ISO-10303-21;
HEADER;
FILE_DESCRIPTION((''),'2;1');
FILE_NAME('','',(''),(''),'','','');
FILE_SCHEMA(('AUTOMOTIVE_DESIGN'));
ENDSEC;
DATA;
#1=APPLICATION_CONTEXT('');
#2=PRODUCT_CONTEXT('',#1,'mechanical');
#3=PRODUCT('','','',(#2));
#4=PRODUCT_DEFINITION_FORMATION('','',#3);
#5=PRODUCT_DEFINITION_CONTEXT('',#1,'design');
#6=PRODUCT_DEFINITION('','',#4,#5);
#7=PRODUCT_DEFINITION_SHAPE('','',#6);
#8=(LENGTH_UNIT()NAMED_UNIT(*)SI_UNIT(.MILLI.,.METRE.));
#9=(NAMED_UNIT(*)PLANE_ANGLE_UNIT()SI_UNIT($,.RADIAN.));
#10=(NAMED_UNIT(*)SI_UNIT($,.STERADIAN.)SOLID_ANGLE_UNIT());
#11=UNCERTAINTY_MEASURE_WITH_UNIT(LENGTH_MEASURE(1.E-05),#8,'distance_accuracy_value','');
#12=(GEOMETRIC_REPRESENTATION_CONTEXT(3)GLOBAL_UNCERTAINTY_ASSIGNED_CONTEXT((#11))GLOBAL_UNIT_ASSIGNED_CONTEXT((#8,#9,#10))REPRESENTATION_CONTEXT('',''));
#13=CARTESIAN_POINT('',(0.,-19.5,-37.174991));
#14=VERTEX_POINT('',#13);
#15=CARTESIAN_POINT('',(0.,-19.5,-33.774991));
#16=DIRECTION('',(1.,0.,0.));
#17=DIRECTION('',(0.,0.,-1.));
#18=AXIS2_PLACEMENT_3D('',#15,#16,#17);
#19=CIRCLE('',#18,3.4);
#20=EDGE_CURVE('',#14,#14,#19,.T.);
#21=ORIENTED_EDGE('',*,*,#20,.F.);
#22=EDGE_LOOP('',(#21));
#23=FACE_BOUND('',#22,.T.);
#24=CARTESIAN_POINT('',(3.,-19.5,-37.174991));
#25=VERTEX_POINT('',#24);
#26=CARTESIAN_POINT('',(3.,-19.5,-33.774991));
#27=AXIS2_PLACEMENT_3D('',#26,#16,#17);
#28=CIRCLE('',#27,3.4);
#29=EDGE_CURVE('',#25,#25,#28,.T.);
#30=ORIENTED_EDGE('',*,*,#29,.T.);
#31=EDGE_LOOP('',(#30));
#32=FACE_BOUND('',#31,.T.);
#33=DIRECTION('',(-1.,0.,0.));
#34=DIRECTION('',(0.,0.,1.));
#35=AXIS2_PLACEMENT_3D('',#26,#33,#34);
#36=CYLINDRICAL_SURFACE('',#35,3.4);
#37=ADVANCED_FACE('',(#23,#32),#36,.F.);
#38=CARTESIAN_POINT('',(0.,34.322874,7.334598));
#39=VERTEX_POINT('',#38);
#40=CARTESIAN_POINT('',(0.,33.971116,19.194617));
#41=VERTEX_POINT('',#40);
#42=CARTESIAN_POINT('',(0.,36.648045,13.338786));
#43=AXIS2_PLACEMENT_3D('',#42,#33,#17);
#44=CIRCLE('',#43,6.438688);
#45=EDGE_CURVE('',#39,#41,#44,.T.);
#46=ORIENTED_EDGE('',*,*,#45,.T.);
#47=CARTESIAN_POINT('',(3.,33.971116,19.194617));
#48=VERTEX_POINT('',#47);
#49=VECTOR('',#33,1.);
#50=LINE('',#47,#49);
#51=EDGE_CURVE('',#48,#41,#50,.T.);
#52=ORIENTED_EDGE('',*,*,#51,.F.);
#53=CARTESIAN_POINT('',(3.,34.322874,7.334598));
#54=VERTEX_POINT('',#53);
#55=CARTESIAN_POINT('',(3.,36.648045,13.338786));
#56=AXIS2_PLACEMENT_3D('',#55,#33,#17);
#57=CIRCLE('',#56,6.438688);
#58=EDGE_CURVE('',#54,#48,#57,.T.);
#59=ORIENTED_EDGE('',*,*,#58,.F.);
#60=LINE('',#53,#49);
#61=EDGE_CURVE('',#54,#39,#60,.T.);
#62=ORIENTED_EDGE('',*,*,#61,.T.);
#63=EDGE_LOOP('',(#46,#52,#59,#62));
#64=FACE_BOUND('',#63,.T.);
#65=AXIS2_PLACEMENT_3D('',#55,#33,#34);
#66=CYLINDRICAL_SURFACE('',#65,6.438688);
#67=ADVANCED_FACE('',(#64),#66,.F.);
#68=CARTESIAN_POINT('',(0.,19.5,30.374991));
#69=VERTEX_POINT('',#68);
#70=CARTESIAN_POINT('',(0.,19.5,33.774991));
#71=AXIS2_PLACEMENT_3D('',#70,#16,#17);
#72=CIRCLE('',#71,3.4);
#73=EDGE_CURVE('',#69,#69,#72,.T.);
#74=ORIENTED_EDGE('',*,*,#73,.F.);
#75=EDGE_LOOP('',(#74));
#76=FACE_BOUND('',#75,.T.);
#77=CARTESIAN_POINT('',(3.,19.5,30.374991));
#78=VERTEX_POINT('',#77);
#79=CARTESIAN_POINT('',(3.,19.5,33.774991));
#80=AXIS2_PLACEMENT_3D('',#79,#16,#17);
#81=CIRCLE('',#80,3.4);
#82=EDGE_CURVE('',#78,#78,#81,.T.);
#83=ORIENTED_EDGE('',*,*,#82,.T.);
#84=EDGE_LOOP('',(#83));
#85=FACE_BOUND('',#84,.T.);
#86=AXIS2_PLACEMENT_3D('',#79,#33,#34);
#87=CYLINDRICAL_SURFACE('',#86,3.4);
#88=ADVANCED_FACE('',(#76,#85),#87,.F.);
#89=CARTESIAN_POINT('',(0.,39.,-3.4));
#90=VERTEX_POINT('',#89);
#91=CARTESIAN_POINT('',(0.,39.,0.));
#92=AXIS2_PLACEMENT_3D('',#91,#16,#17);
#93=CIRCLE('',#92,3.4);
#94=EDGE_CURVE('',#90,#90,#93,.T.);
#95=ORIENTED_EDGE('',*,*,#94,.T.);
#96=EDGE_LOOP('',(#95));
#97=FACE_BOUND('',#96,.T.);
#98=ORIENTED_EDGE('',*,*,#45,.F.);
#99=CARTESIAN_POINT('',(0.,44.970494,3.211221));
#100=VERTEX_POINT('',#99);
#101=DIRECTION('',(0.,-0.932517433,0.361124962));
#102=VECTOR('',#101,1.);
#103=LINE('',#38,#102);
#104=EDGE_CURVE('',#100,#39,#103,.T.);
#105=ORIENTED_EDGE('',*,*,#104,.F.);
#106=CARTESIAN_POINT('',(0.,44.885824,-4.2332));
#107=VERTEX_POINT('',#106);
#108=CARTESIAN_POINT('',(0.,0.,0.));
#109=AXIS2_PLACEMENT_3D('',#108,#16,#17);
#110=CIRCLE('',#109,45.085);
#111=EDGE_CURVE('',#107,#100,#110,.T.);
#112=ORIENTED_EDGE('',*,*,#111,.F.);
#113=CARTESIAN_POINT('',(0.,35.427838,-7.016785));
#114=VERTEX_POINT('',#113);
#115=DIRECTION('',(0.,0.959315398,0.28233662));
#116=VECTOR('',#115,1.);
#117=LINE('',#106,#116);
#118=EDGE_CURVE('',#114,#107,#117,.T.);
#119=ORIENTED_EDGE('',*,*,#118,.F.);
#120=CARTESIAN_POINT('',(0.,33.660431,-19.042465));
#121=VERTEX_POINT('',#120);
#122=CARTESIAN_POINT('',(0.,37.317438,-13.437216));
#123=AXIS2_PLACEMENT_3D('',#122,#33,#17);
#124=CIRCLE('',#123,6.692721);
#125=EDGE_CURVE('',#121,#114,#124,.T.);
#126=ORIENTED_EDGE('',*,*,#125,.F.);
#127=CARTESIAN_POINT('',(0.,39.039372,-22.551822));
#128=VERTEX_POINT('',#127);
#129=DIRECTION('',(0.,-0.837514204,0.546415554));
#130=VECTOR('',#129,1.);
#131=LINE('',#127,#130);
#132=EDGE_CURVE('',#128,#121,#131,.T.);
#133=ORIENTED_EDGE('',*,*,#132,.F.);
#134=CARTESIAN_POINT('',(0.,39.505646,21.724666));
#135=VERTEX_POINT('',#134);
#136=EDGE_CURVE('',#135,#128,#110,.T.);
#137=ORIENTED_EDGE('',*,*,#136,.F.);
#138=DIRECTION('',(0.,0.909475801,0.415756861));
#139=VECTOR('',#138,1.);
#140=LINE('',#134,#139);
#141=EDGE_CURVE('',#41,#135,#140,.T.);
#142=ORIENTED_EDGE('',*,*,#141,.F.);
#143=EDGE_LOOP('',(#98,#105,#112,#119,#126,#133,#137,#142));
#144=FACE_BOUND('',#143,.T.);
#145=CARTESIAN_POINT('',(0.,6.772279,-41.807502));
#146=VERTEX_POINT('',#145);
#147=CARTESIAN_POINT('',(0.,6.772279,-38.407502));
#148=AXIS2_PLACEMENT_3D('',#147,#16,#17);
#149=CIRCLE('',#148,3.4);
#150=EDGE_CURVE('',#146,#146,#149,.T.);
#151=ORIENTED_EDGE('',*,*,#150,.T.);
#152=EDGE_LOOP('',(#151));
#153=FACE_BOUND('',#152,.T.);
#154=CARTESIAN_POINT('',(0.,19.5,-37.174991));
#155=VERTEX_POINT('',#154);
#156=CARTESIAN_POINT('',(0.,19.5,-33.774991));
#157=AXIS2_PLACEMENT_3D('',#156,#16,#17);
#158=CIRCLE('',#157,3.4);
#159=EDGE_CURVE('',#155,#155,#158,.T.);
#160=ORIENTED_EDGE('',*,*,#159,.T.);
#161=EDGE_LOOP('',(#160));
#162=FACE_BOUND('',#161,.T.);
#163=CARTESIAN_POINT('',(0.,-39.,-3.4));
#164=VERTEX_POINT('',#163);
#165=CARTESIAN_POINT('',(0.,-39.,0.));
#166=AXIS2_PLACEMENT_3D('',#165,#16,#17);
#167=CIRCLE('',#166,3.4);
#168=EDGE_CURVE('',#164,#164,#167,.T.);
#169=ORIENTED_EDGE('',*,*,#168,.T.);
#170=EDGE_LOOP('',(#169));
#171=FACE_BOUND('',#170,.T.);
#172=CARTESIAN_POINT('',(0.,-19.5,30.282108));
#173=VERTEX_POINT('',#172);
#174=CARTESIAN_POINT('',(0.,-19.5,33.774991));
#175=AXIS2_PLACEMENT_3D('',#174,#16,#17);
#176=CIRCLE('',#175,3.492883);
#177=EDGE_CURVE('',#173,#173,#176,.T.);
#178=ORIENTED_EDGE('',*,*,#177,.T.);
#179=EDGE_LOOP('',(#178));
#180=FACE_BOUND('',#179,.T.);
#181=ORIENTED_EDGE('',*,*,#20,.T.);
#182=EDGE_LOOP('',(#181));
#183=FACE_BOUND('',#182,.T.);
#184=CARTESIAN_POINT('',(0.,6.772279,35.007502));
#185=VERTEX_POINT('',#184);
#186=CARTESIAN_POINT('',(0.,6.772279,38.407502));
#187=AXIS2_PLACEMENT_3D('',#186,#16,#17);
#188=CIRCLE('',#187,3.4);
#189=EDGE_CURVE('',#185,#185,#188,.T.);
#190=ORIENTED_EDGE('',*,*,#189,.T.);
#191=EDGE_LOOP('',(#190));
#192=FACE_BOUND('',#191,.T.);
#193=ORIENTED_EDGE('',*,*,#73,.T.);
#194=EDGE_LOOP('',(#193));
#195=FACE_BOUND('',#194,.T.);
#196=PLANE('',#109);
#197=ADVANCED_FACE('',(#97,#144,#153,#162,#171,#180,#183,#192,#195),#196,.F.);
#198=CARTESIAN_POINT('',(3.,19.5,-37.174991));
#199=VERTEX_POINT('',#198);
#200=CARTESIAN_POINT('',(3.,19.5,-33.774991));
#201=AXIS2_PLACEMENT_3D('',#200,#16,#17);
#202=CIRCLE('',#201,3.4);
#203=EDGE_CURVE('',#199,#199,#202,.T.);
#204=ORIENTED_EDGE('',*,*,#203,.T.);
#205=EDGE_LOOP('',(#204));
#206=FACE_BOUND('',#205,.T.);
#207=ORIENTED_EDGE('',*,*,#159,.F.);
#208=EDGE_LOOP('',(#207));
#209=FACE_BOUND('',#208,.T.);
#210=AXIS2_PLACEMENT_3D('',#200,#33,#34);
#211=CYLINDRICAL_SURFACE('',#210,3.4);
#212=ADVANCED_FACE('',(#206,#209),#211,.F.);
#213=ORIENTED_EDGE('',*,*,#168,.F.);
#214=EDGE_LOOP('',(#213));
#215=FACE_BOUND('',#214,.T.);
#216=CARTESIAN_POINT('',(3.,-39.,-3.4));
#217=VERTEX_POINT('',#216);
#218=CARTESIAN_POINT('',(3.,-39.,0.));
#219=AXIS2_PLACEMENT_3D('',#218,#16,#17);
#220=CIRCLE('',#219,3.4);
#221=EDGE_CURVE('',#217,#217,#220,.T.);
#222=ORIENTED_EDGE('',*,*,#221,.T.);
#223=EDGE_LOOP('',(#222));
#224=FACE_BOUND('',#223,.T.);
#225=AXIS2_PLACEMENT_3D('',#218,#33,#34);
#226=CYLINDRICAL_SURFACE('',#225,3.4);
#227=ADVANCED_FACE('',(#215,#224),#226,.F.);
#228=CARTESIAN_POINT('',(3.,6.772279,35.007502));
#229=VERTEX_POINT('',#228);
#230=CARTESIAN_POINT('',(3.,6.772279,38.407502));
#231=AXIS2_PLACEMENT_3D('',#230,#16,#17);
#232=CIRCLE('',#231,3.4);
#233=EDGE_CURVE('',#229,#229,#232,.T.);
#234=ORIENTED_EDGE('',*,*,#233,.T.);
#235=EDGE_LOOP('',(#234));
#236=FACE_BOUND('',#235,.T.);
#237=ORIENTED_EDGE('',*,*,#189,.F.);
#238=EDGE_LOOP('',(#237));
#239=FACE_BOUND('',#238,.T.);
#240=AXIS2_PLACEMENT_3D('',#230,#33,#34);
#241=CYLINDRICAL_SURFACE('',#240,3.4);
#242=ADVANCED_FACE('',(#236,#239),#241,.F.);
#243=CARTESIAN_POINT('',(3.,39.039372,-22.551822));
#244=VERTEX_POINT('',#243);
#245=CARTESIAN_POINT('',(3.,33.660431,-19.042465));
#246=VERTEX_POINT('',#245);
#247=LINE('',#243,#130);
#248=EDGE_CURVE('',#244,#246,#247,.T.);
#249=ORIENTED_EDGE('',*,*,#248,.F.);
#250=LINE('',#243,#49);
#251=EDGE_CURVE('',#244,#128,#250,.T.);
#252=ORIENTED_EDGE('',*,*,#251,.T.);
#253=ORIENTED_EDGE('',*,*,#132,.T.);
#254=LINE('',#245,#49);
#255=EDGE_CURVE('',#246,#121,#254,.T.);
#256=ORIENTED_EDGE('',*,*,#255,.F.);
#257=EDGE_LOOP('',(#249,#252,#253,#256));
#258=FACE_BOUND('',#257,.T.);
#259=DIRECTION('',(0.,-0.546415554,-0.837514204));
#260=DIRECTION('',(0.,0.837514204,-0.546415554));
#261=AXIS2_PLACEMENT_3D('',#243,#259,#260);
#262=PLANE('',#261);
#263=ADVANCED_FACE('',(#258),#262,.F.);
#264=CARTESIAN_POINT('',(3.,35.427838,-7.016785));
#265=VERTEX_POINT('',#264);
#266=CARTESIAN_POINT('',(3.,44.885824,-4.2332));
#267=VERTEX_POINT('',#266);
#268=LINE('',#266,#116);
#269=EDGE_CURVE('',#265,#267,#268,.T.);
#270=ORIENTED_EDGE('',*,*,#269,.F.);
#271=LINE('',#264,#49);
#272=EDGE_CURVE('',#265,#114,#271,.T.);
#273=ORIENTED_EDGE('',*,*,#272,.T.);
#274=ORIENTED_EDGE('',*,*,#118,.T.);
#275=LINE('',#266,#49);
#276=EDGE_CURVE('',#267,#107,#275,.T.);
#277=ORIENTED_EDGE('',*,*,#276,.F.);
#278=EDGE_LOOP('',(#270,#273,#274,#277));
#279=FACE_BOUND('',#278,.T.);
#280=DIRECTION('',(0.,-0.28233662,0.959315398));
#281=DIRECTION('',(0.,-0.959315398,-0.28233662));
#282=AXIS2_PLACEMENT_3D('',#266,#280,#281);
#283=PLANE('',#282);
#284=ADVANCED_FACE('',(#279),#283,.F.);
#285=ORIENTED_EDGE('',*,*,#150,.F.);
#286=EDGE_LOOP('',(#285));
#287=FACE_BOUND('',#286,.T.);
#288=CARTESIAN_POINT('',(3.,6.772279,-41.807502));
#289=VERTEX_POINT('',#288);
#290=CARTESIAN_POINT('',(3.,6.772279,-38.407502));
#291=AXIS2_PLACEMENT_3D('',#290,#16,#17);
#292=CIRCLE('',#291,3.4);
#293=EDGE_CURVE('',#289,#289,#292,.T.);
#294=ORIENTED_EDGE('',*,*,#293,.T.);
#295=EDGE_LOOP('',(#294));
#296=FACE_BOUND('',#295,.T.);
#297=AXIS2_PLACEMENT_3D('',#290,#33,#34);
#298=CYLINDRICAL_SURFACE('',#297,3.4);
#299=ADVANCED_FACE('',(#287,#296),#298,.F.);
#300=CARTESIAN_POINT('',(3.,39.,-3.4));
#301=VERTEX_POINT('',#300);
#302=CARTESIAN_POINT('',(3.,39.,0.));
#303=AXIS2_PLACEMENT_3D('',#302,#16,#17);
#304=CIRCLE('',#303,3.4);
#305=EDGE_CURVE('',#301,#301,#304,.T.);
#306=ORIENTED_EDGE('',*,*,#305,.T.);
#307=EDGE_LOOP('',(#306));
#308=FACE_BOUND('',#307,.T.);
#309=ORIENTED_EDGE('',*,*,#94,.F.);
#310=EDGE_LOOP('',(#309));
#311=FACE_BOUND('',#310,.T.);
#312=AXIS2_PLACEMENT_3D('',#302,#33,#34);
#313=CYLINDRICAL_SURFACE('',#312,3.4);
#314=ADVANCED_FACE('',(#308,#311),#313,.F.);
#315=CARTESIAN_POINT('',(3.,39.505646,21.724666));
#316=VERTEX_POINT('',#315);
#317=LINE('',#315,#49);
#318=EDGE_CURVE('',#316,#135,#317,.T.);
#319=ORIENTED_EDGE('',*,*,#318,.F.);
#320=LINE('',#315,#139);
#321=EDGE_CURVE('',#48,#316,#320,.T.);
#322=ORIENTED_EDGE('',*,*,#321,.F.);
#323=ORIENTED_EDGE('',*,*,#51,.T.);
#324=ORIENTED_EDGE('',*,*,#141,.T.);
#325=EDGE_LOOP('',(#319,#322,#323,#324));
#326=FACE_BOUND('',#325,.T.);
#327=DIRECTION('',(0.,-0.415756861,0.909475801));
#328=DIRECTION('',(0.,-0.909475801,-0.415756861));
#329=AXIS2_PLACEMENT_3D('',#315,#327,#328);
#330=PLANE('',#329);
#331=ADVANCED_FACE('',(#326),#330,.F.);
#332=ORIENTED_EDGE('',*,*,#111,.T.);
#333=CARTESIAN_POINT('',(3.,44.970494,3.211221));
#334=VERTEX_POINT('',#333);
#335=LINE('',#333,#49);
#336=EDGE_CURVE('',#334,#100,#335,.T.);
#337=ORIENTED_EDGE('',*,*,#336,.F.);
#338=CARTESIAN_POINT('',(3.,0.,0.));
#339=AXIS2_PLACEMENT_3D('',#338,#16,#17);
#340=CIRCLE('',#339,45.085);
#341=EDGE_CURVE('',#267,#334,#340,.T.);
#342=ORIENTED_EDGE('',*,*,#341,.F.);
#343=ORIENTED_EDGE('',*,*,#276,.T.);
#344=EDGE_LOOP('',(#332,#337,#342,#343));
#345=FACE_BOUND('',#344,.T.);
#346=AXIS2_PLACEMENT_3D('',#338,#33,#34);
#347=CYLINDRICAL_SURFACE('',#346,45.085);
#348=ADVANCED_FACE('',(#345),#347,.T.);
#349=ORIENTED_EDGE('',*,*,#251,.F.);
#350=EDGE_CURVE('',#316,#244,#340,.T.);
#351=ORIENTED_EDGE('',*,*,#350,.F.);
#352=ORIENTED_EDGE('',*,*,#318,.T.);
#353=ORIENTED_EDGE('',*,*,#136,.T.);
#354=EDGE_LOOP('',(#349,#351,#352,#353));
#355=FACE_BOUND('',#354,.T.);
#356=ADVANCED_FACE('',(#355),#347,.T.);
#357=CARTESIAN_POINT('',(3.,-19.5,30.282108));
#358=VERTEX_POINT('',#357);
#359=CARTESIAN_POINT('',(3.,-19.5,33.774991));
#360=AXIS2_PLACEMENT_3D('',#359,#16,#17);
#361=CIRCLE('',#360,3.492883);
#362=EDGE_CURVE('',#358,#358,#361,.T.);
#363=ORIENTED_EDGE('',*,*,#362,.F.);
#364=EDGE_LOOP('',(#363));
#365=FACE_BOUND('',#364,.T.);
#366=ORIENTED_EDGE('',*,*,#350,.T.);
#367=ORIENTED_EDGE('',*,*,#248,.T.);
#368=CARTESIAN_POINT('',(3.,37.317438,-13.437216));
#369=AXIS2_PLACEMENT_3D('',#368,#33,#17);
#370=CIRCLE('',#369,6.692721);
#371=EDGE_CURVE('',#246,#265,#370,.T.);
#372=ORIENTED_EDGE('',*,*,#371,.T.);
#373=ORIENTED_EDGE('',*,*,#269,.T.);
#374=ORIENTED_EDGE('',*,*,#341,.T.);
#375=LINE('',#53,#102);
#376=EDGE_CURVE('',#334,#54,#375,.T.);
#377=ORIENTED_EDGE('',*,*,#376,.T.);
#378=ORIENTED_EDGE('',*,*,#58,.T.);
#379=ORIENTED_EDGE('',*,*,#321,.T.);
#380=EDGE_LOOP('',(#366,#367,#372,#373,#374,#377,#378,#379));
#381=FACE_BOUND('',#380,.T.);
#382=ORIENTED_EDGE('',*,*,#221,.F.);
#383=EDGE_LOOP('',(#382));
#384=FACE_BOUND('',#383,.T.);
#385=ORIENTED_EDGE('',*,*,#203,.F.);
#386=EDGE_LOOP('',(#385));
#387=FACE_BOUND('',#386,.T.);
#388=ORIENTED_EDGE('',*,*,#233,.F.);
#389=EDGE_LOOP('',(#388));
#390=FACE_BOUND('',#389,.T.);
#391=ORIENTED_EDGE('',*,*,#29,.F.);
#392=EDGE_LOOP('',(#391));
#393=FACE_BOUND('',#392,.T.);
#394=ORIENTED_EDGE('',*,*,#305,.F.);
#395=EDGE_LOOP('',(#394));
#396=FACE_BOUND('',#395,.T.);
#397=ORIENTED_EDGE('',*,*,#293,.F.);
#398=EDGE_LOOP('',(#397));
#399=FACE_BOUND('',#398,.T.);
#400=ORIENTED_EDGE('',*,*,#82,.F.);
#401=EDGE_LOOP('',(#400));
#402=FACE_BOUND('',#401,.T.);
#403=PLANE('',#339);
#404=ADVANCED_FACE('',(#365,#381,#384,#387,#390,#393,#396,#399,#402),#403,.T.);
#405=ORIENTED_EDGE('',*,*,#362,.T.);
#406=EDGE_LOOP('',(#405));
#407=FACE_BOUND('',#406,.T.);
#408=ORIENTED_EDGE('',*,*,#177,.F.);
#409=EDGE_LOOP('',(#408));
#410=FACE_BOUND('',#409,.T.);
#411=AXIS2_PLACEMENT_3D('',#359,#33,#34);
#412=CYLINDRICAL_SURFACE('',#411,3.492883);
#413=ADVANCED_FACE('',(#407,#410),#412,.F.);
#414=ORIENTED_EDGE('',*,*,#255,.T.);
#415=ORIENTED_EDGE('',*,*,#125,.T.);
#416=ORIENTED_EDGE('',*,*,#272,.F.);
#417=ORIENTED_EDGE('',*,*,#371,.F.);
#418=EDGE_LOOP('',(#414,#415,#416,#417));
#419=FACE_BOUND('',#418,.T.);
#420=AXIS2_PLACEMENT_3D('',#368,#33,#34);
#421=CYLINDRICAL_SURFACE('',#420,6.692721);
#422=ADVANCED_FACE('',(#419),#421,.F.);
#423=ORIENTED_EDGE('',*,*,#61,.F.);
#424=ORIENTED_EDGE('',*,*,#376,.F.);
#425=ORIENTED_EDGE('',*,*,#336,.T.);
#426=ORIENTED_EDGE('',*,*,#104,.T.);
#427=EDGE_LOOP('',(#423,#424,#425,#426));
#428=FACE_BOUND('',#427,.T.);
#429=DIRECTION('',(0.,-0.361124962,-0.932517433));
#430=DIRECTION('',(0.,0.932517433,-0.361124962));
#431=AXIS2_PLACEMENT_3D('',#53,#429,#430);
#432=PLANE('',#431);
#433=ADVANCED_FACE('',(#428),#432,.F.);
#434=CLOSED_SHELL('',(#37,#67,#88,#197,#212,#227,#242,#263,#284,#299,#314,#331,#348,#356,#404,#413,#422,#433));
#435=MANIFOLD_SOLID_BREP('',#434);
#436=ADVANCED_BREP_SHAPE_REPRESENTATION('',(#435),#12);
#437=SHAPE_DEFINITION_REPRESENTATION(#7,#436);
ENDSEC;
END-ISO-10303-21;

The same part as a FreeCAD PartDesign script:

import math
import FreeCAD as App
import Part
import Sketcher

doc = App.newDocument("Part")
body = doc.addObject("PartDesign::Body", "Body")

# Sketch on YZ plane
sketch1 = body.newObject("Sketcher::SketchObject", "Sketch")
sketch1.AttachmentSupport = (doc.getObject("YZ_Plane"), [""])
sketch1.MapMode = "FlatFace"
sketch1.addGeometry([
    Part.LineSegment(App.Vector(34, 19.2, 0), App.Vector(39.5, 21.7, 0)),  # 0
    Part.ArcOfCircle(Part.Circle(App.Vector(0, 0, 0), App.Vector(0, 0, 1), 45.1), math.radians(29), math.radians(330)),  # 1
    Part.LineSegment(App.Vector(39, -22.6, 0), App.Vector(33.7, -19, 0)),  # 2
    Part.ArcOfCircle(Part.Circle(App.Vector(37.3, -13.4, 0), App.Vector(0, 0, 1), 6.7), math.radians(106), math.radians(237)),  # 3
    Part.LineSegment(App.Vector(35.4, -7, 0), App.Vector(44.9, -4.2, 0)),  # 4
    Part.ArcOfCircle(Part.Circle(App.Vector(0, 0, 0), App.Vector(0, 0, 1), 45.1), math.radians(-5.39), math.radians(4.08)),  # 5
    Part.LineSegment(App.Vector(45, 3.2, 0), App.Vector(34.3, 7.3, 0)),  # 6
    Part.ArcOfCircle(Part.Circle(App.Vector(36.6, 13.3, 0), App.Vector(0, 0, 1), 6.4), math.radians(115), math.radians(249)),  # 7
    Part.Circle(App.Vector(-19.5, -33.8, 0), App.Vector(0, 0, 1), 3.4),  # 8
    Part.Circle(App.Vector(-39, 0, 0), App.Vector(0, 0, 1), 3.4),  # 9
    Part.Circle(App.Vector(-19.5, 33.8, 0), App.Vector(0, 0, 1), 3.5),  # 10
    Part.Circle(App.Vector(6.8, -38.4, 0), App.Vector(0, 0, 1), 3.4),  # 11
    Part.Circle(App.Vector(19.5, -33.8, 0), App.Vector(0, 0, 1), 3.4),  # 12
    Part.Circle(App.Vector(6.8, 38.4, 0), App.Vector(0, 0, 1), 3.4),  # 13
    Part.Circle(App.Vector(19.5, 33.8, 0), App.Vector(0, 0, 1), 3.4),  # 14
    Part.Circle(App.Vector(39, 0, 0), App.Vector(0, 0, 1), 3.4),  # 15
], False)
sketch1.addConstraint([
    Sketcher.Constraint("Coincident", 0, 2, 1, 1),
    Sketcher.Constraint("Coincident", 1, 2, 2, 1),
    Sketcher.Constraint("Tangent", 2, 2, 3, 2),
    Sketcher.Constraint("Tangent", 3, 1, 4, 1),
    Sketcher.Constraint("Coincident", 4, 2, 5, 1),
    Sketcher.Constraint("Coincident", 5, 2, 6, 1),
    Sketcher.Constraint("Tangent", 6, 2, 7, 2),
    Sketcher.Constraint("Tangent", 7, 1, 0, 1),
    Sketcher.Constraint("Coincident", 1, 3, -1, 1),
    Sketcher.Constraint("Coincident", 5, 3, -1, 1),
    Sketcher.Constraint("Equal", 1, 5),
    Sketcher.Constraint("Equal", 8, 9),
    Sketcher.Constraint("Equal", 9, 11),
    Sketcher.Constraint("Equal", 11, 12),
    Sketcher.Constraint("Equal", 12, 13),
    Sketcher.Constraint("Equal", 13, 14),
    Sketcher.Constraint("Equal", 14, 15),
    Sketcher.Constraint("Symmetric", 10, 3, 12, 3, -1, 1),
    Sketcher.Constraint("Symmetric", 8, 3, 14, 3, -1, 1),
    Sketcher.Constraint("Symmetric", 9, 3, 15, 3, -1, 1),
    Sketcher.Constraint("Symmetric", 8, 3, 12, 3, -2),
    Sketcher.Constraint("Symmetric", 11, 3, 13, 3, -1),
    Sketcher.Constraint("PointOnObject", 9, 3, -1),
    Sketcher.Constraint("Diameter", 8, 6.8),
    Sketcher.Constraint("DistanceX", 9, 3, -1, 1, 39.0),
    Sketcher.Constraint("Radius", 1, 45.085),
    Sketcher.Constraint("DistanceX", 8, 3, 12, 3, 39.0),
    Sketcher.Constraint("Radius", 3, 6.692721),
    Sketcher.Constraint("Diameter", 10, 6.985766),
    Sketcher.Constraint("Radius", 7, 6.438688),
    Sketcher.Constraint("DistanceY", 3, 3, 7, 3, 26.776002),
    Sketcher.Constraint("Distance", 4, 9.8591),
    Sketcher.Constraint("DistanceY", 4, 2, -1, 1, 4.2332),
    Sketcher.Constraint("DistanceX", 7, 3, 0, 2, 2.857601),
    Sketcher.Constraint("DistanceX", 3, 1, 3, 3, 1.8896),
    Sketcher.Constraint("DistanceY", 8, 3, -1, 1, 33.774991),
    Sketcher.Constraint("DistanceX", -1, 1, 11, 3, 6.772279),
    Sketcher.Constraint("DistanceX", -1, 1, 1, 2, 39.039372),
    Sketcher.Constraint("DistanceY", -1, 1, 5, 2, 3.211221),
    Sketcher.Constraint("DistanceY", 11, 3, 8, 3, 4.632512),
    Sketcher.Constraint("DistanceY", 7, 3, 0, 2, 8.38588),
])
pad1 = body.newObject("PartDesign::Pad", "Pad")
pad1.Profile = sketch1
pad1.Length = 3

doc.recompute()
